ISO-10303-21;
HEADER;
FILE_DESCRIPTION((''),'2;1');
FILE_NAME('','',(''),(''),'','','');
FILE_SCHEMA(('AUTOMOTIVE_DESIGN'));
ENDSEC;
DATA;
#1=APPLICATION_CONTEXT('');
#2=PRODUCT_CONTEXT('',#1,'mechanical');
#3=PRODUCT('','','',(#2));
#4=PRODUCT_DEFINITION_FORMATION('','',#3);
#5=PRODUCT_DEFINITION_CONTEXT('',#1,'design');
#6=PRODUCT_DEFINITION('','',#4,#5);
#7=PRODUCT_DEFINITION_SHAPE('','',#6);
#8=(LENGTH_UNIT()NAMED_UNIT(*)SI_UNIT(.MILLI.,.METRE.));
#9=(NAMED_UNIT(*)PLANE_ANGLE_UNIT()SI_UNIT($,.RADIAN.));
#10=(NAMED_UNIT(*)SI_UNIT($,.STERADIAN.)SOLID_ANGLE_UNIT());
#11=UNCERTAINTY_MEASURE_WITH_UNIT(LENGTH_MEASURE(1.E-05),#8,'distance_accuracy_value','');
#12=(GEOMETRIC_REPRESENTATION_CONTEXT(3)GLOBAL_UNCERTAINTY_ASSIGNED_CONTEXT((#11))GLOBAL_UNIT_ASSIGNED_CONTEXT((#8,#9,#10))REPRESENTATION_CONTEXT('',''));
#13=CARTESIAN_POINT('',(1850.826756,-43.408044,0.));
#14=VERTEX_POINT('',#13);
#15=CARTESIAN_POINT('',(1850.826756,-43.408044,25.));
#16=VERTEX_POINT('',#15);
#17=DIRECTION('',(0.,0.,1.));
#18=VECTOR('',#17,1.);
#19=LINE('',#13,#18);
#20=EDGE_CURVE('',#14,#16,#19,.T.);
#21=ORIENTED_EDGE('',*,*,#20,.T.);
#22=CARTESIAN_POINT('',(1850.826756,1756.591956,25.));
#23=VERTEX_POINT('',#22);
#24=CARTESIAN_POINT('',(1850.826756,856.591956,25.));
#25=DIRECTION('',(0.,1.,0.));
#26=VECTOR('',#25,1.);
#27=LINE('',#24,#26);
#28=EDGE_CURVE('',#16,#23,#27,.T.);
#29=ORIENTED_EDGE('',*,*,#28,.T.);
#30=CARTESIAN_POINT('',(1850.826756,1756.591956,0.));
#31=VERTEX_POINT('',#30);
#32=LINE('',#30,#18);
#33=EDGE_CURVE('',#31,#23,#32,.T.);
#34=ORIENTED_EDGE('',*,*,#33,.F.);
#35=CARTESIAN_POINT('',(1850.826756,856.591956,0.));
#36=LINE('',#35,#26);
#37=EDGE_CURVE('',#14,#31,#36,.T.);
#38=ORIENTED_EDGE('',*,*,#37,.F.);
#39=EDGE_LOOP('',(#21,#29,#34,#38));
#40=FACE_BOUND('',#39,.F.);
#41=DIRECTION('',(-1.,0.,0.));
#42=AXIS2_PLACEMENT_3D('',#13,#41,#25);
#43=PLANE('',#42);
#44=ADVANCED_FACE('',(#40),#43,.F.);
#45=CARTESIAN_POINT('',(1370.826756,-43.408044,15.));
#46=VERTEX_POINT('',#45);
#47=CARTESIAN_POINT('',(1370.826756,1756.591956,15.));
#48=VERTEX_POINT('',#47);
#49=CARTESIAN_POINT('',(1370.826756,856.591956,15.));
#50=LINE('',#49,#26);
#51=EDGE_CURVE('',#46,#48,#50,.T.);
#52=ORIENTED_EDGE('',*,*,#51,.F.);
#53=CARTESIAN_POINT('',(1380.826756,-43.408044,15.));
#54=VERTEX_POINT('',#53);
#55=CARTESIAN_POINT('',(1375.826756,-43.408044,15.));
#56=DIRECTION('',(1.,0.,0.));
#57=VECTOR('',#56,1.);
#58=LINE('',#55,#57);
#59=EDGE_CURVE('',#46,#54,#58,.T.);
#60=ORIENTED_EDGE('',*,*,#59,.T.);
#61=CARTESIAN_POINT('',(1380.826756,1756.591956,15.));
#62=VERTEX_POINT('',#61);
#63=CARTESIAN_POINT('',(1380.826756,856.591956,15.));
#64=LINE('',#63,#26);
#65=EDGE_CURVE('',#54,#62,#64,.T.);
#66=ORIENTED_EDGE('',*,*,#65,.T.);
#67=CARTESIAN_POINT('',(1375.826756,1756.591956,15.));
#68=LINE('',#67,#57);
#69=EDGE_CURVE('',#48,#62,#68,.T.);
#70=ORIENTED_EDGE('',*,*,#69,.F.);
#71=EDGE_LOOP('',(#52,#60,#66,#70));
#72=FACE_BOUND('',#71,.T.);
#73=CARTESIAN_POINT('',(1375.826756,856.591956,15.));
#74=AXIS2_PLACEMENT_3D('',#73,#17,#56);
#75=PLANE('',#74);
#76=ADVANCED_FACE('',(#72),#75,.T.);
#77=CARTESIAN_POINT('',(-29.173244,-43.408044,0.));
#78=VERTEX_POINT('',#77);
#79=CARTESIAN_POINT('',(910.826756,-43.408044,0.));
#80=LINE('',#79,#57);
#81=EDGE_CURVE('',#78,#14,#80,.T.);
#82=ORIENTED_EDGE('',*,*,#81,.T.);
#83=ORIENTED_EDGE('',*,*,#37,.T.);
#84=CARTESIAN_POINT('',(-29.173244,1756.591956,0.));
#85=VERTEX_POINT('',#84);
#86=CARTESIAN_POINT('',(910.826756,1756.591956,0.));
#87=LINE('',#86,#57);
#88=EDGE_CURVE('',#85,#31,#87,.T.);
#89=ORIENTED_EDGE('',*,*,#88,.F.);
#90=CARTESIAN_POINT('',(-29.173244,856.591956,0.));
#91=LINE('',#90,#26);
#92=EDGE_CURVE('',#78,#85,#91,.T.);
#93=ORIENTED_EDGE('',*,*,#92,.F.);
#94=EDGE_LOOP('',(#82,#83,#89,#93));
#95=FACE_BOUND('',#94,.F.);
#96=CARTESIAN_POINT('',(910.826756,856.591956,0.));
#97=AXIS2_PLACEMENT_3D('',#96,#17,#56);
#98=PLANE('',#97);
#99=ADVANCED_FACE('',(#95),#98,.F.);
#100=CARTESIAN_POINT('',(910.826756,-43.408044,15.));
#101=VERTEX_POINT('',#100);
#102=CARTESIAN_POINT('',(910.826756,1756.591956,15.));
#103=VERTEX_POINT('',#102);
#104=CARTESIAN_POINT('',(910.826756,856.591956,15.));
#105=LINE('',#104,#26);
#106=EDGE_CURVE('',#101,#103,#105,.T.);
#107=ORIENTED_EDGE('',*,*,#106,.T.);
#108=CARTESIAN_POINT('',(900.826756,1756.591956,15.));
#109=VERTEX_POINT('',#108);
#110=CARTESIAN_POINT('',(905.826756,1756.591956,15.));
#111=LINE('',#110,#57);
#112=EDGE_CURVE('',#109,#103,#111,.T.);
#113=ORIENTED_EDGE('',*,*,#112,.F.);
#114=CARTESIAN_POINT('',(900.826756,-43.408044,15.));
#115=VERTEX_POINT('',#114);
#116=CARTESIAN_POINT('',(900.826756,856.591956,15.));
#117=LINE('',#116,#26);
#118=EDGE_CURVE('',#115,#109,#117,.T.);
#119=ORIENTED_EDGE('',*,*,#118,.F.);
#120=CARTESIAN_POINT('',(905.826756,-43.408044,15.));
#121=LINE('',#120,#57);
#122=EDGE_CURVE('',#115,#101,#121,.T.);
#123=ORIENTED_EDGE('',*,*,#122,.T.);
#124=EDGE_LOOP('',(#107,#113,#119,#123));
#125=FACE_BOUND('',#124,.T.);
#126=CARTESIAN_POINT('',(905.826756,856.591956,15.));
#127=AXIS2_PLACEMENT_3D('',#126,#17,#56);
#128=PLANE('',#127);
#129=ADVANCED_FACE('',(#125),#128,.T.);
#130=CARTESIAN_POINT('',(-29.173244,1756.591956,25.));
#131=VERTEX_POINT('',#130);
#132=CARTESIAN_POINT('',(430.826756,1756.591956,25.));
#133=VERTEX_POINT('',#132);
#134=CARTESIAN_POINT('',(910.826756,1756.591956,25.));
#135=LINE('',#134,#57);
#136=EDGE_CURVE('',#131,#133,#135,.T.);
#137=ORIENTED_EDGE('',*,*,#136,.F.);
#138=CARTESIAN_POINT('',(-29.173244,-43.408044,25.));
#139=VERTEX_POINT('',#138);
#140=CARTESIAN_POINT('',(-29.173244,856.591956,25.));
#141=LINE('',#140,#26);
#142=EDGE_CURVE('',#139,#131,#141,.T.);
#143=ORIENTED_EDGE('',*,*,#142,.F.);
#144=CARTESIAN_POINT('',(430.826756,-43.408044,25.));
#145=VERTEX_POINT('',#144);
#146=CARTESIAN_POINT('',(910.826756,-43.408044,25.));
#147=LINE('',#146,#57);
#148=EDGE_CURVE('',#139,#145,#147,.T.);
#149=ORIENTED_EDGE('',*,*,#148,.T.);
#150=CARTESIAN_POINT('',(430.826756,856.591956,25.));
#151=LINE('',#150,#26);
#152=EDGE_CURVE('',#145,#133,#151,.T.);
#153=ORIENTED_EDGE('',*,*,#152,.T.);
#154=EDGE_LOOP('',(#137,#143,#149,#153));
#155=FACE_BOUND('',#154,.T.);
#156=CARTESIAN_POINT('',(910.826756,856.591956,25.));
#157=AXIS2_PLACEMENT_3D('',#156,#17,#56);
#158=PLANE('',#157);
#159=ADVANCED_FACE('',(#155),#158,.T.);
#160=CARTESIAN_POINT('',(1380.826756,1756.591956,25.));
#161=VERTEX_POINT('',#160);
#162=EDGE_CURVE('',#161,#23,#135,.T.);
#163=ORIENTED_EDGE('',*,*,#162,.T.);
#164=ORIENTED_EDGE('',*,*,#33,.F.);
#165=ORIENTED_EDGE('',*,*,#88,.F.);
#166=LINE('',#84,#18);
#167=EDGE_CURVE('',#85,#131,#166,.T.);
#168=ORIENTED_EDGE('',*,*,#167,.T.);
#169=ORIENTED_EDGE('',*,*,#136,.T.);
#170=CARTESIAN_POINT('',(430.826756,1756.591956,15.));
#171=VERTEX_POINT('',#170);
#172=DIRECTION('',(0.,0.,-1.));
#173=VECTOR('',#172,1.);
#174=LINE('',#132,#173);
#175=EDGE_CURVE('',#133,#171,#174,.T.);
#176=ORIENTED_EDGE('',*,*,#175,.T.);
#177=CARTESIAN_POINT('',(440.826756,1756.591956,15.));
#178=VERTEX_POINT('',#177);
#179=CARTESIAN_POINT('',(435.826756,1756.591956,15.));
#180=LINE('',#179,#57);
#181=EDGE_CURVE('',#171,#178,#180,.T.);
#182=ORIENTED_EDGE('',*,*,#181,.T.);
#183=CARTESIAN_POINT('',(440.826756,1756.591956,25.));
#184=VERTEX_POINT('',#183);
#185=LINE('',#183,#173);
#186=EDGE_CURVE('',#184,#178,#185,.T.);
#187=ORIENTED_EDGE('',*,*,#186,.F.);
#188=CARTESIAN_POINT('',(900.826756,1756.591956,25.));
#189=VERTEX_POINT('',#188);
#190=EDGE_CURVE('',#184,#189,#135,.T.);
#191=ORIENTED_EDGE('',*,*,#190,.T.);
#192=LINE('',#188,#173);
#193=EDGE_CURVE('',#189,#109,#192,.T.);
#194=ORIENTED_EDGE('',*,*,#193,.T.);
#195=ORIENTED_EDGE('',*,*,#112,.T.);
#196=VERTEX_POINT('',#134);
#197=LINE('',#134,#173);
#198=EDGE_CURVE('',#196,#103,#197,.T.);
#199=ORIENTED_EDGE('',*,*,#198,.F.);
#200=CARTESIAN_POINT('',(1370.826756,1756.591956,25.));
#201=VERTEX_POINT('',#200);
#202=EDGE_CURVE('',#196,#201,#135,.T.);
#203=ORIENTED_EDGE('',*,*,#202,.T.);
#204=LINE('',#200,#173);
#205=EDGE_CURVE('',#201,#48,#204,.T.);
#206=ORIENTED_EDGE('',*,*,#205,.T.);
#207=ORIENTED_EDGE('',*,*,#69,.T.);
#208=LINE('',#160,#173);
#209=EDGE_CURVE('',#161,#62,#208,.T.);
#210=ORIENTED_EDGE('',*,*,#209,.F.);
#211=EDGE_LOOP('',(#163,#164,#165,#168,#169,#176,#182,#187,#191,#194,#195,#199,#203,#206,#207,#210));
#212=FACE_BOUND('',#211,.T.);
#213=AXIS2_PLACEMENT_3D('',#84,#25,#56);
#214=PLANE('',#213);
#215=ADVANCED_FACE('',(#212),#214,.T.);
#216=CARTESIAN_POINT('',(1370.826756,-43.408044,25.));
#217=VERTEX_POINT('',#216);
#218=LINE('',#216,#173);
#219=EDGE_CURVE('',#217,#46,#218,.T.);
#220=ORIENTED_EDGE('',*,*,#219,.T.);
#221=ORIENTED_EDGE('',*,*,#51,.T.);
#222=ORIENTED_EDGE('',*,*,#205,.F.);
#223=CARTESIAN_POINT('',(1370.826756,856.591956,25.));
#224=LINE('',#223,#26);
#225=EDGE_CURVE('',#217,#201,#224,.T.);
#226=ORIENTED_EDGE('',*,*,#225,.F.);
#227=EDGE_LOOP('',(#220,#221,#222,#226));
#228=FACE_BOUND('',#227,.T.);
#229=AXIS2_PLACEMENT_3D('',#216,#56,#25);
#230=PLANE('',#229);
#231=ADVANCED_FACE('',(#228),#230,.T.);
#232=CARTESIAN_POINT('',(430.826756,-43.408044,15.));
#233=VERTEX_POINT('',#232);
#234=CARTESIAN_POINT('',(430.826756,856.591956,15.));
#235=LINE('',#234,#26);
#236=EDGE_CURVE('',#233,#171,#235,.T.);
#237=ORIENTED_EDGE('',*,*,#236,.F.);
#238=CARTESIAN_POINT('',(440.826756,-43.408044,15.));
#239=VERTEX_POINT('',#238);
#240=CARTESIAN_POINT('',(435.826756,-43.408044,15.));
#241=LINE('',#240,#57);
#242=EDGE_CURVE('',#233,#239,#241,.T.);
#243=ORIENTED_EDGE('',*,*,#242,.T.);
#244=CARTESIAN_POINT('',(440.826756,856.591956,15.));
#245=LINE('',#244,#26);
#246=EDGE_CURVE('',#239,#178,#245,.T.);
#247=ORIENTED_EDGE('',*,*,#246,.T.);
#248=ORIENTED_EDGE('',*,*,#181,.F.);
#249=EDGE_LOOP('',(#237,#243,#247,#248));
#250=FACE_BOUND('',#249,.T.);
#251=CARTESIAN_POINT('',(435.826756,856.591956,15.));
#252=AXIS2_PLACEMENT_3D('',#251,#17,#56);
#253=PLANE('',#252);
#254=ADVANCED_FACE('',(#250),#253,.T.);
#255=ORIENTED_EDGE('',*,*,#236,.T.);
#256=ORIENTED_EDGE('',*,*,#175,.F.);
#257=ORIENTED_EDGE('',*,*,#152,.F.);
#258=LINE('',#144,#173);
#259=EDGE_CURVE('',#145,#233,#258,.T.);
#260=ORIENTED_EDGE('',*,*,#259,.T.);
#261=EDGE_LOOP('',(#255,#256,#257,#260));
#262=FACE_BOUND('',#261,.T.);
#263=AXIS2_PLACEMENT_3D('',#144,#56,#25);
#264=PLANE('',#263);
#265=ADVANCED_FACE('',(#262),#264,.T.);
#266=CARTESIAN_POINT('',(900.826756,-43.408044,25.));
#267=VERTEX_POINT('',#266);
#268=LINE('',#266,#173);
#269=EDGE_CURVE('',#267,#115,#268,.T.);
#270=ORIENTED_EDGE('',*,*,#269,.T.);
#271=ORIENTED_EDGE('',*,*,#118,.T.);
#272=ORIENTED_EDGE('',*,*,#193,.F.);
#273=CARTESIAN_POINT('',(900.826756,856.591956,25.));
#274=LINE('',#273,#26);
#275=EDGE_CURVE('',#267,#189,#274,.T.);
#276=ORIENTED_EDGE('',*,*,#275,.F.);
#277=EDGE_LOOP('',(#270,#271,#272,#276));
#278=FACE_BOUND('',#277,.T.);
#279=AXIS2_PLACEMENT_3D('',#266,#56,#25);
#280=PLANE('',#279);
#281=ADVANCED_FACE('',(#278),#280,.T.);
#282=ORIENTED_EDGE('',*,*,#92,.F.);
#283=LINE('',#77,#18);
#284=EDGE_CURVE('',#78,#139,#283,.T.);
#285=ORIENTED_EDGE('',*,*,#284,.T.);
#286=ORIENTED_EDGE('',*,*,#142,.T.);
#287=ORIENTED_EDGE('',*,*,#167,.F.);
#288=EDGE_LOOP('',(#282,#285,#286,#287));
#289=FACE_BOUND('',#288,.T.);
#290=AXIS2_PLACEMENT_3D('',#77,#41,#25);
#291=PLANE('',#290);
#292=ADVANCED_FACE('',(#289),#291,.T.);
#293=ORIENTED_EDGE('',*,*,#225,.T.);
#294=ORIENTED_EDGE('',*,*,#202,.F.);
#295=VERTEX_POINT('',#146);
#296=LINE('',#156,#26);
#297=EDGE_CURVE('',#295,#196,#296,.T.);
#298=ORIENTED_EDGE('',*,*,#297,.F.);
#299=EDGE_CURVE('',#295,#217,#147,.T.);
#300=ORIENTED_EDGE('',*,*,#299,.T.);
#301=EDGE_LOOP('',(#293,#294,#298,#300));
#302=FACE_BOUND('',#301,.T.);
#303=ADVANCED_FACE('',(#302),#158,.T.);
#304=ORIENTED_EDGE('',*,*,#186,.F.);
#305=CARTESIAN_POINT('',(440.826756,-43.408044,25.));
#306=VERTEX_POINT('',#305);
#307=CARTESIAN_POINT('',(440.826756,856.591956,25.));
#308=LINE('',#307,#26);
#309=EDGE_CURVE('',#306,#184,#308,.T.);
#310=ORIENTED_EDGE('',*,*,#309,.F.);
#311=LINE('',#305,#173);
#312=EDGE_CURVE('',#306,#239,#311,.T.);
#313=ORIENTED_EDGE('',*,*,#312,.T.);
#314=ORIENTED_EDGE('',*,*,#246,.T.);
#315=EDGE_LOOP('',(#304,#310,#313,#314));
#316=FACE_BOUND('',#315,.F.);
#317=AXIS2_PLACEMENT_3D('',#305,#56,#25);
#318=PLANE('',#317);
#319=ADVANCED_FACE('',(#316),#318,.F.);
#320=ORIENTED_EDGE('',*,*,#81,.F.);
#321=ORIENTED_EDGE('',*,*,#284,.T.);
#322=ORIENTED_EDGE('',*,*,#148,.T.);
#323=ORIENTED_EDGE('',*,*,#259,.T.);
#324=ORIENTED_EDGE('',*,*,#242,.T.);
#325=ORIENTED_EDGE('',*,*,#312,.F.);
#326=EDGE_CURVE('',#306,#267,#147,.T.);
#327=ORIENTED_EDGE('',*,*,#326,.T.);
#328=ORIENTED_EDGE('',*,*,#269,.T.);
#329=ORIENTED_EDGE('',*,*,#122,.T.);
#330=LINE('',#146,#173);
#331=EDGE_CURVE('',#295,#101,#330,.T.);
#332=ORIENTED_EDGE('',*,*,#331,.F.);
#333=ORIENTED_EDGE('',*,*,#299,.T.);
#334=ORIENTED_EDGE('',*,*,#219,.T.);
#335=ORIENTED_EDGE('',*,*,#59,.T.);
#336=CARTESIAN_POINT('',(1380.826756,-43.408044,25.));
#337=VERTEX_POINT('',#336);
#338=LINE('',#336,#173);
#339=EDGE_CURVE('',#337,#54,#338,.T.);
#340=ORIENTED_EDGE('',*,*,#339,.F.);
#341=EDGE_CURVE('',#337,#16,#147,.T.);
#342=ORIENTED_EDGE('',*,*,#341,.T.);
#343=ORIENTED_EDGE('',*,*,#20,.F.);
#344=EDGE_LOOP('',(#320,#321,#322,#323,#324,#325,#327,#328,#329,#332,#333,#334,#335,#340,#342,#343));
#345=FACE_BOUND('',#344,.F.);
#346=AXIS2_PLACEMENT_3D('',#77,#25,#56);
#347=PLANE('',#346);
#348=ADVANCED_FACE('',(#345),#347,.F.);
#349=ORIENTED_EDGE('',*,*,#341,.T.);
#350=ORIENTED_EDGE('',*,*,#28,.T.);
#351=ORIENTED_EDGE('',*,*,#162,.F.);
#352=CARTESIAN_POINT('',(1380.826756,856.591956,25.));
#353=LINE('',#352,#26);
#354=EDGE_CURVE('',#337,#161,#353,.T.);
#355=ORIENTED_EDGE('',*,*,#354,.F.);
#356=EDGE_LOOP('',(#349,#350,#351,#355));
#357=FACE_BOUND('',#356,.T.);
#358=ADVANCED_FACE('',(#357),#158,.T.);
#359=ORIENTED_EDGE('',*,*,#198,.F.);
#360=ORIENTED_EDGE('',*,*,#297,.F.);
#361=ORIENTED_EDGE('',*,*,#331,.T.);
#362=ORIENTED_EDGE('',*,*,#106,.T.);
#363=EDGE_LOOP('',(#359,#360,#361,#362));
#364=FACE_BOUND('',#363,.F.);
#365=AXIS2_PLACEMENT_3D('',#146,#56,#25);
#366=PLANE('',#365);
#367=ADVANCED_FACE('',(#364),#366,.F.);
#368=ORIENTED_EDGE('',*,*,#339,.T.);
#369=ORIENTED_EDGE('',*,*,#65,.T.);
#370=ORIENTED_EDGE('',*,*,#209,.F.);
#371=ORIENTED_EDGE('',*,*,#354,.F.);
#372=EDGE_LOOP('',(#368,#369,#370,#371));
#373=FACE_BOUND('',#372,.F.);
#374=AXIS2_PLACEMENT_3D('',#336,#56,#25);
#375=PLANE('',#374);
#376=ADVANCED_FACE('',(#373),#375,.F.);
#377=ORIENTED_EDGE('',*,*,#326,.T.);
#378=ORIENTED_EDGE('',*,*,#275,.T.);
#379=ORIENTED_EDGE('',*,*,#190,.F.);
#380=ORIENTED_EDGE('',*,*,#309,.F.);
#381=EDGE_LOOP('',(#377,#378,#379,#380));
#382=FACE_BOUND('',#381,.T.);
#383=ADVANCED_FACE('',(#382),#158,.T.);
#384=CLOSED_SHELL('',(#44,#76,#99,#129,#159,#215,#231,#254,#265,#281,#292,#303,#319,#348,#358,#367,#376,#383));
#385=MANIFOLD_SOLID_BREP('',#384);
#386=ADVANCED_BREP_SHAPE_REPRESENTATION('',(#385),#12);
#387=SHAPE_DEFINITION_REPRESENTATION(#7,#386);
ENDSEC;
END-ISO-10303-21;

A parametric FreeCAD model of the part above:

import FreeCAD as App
import Part
import Sketcher


def add_polygon(sketch, points):
    """Adds a closed chain of lines whose ends are joined by coincident constraints."""
    first, n = sketch.GeometryCount, len(points)
    for a, b in zip(points, points[1:] + points[:1]):
        sketch.addGeometry(Part.LineSegment(App.Vector(*a, 0), App.Vector(*b, 0)), False)
    for i in range(n):
        sketch.addConstraint(Sketcher.Constraint("Coincident", first + i, 2, first + (i + 1) % n, 1))

doc = App.newDocument("Part")
body = doc.addObject("PartDesign::Body", "Body")

sketch1 = doc.addObject("Sketcher::SketchObject", "Sketch")
body.addObject(sketch1)
sketch1.AttachmentSupport = (doc.XY_Plane, [""])
sketch1.MapMode = "FlatFace"
add_polygon(sketch1, [(-29.173244, 1756.591956), (-29.173244, -43.408044), (1850.826756, -43.408044), (1850.826756, 1756.591956)])
sketch1.addConstraint([
    Sketcher.Constraint("Vertical", 0),
    Sketcher.Constraint("Horizontal", 1),
    Sketcher.Constraint("Vertical", 2),
    Sketcher.Constraint("Horizontal", 3),
    Sketcher.Constraint("DistanceX", 1, 1, 1, 2, 1880.0),
    Sketcher.Constraint("DistanceY", 0, 2, 0, 1, 1800.0),
    Sketcher.Constraint("DistanceX", 0, 2, -1, 1, 29.173244),
    Sketcher.Constraint("DistanceY", 0, 2, -1, 1, 43.408044),
])
pad1 = doc.addObject("PartDesign::Pad", "Pad")
body.addObject(pad1)
pad1.Profile = sketch1
pad1.Length = 25

sketch2 = doc.addObject("Sketcher::SketchObject", "Sketch001")
body.addObject(sketch2)
sketch2.AttachmentSupport = (doc.XY_Plane, [""])
sketch2.MapMode = "FlatFace"
sketch2.AttachmentOffset = App.Placement(App.Vector(0, 0, 25), App.Rotation())
add_polygon(sketch2, [(430.826756, 1756.591956), (430.826756, -43.408044), (440.826756, -43.408044), (440.826756, 1756.591956)])
add_polygon(sketch2, [(900.826756, 1756.591956), (900.826756, -43.408044), (910.826756, -43.408044), (910.826756, 1756.591956)])
add_polygon(sketch2, [(1370.826756, 1756.591956), (1370.826756, -43.408044), (1380.826756, -43.408044), (1380.826756, 1756.591956)])
sketch2.addConstraint([
    Sketcher.Constraint("Vertical", 0),
    Sketcher.Constraint("Horizontal", 1),
    Sketcher.Constraint("Vertical", 2),
    Sketcher.Constraint("Horizontal", 3),
    Sketcher.Constraint("Vertical", 4),
    Sketcher.Constraint("Horizontal", 5),
    Sketcher.Constraint("Vertical", 6),
    Sketcher.Constraint("Horizontal", 7),
    Sketcher.Constraint("Vertical", 8),
    Sketcher.Constraint("Horizontal", 9),
    Sketcher.Constraint("Vertical", 10),
    Sketcher.Constraint("Horizontal", 11),
    Sketcher.Constraint("Horizontal", 1, 2, 4, 2),
    Sketcher.Constraint("Horizontal", 3, 2, 6, 2),
    Sketcher.Constraint("Horizontal", 5, 2, 8, 2),
    Sketcher.Constraint("Horizontal", 7, 2, 10, 2),
    Sketcher.Constraint("Equal", 3, 5),
    Sketcher.Constraint("Equal", 7, 9),
    Sketcher.Constraint("DistanceX", 1, 1, 1, 2, 10.0),
    Sketcher.Constraint("DistanceY", 0, 2, 0, 1, 1800.0),
    Sketcher.Constraint("DistanceX", 1, 2, 4, 2, 460.0),
    Sketcher.Constraint("DistanceX", 5, 2, 8, 2, 460.0),
    Sketcher.Constraint("DistanceX", -1, 1, 0, 2, 430.826756),
    Sketcher.Constraint("DistanceY", 0, 2, -1, 1, 43.408044),
])
pocket1 = doc.addObject("PartDesign::Pocket", "Pocket")
body.addObject(pocket1)
pocket1.Profile = sketch2
pocket1.Length = 10

doc.recompute()
